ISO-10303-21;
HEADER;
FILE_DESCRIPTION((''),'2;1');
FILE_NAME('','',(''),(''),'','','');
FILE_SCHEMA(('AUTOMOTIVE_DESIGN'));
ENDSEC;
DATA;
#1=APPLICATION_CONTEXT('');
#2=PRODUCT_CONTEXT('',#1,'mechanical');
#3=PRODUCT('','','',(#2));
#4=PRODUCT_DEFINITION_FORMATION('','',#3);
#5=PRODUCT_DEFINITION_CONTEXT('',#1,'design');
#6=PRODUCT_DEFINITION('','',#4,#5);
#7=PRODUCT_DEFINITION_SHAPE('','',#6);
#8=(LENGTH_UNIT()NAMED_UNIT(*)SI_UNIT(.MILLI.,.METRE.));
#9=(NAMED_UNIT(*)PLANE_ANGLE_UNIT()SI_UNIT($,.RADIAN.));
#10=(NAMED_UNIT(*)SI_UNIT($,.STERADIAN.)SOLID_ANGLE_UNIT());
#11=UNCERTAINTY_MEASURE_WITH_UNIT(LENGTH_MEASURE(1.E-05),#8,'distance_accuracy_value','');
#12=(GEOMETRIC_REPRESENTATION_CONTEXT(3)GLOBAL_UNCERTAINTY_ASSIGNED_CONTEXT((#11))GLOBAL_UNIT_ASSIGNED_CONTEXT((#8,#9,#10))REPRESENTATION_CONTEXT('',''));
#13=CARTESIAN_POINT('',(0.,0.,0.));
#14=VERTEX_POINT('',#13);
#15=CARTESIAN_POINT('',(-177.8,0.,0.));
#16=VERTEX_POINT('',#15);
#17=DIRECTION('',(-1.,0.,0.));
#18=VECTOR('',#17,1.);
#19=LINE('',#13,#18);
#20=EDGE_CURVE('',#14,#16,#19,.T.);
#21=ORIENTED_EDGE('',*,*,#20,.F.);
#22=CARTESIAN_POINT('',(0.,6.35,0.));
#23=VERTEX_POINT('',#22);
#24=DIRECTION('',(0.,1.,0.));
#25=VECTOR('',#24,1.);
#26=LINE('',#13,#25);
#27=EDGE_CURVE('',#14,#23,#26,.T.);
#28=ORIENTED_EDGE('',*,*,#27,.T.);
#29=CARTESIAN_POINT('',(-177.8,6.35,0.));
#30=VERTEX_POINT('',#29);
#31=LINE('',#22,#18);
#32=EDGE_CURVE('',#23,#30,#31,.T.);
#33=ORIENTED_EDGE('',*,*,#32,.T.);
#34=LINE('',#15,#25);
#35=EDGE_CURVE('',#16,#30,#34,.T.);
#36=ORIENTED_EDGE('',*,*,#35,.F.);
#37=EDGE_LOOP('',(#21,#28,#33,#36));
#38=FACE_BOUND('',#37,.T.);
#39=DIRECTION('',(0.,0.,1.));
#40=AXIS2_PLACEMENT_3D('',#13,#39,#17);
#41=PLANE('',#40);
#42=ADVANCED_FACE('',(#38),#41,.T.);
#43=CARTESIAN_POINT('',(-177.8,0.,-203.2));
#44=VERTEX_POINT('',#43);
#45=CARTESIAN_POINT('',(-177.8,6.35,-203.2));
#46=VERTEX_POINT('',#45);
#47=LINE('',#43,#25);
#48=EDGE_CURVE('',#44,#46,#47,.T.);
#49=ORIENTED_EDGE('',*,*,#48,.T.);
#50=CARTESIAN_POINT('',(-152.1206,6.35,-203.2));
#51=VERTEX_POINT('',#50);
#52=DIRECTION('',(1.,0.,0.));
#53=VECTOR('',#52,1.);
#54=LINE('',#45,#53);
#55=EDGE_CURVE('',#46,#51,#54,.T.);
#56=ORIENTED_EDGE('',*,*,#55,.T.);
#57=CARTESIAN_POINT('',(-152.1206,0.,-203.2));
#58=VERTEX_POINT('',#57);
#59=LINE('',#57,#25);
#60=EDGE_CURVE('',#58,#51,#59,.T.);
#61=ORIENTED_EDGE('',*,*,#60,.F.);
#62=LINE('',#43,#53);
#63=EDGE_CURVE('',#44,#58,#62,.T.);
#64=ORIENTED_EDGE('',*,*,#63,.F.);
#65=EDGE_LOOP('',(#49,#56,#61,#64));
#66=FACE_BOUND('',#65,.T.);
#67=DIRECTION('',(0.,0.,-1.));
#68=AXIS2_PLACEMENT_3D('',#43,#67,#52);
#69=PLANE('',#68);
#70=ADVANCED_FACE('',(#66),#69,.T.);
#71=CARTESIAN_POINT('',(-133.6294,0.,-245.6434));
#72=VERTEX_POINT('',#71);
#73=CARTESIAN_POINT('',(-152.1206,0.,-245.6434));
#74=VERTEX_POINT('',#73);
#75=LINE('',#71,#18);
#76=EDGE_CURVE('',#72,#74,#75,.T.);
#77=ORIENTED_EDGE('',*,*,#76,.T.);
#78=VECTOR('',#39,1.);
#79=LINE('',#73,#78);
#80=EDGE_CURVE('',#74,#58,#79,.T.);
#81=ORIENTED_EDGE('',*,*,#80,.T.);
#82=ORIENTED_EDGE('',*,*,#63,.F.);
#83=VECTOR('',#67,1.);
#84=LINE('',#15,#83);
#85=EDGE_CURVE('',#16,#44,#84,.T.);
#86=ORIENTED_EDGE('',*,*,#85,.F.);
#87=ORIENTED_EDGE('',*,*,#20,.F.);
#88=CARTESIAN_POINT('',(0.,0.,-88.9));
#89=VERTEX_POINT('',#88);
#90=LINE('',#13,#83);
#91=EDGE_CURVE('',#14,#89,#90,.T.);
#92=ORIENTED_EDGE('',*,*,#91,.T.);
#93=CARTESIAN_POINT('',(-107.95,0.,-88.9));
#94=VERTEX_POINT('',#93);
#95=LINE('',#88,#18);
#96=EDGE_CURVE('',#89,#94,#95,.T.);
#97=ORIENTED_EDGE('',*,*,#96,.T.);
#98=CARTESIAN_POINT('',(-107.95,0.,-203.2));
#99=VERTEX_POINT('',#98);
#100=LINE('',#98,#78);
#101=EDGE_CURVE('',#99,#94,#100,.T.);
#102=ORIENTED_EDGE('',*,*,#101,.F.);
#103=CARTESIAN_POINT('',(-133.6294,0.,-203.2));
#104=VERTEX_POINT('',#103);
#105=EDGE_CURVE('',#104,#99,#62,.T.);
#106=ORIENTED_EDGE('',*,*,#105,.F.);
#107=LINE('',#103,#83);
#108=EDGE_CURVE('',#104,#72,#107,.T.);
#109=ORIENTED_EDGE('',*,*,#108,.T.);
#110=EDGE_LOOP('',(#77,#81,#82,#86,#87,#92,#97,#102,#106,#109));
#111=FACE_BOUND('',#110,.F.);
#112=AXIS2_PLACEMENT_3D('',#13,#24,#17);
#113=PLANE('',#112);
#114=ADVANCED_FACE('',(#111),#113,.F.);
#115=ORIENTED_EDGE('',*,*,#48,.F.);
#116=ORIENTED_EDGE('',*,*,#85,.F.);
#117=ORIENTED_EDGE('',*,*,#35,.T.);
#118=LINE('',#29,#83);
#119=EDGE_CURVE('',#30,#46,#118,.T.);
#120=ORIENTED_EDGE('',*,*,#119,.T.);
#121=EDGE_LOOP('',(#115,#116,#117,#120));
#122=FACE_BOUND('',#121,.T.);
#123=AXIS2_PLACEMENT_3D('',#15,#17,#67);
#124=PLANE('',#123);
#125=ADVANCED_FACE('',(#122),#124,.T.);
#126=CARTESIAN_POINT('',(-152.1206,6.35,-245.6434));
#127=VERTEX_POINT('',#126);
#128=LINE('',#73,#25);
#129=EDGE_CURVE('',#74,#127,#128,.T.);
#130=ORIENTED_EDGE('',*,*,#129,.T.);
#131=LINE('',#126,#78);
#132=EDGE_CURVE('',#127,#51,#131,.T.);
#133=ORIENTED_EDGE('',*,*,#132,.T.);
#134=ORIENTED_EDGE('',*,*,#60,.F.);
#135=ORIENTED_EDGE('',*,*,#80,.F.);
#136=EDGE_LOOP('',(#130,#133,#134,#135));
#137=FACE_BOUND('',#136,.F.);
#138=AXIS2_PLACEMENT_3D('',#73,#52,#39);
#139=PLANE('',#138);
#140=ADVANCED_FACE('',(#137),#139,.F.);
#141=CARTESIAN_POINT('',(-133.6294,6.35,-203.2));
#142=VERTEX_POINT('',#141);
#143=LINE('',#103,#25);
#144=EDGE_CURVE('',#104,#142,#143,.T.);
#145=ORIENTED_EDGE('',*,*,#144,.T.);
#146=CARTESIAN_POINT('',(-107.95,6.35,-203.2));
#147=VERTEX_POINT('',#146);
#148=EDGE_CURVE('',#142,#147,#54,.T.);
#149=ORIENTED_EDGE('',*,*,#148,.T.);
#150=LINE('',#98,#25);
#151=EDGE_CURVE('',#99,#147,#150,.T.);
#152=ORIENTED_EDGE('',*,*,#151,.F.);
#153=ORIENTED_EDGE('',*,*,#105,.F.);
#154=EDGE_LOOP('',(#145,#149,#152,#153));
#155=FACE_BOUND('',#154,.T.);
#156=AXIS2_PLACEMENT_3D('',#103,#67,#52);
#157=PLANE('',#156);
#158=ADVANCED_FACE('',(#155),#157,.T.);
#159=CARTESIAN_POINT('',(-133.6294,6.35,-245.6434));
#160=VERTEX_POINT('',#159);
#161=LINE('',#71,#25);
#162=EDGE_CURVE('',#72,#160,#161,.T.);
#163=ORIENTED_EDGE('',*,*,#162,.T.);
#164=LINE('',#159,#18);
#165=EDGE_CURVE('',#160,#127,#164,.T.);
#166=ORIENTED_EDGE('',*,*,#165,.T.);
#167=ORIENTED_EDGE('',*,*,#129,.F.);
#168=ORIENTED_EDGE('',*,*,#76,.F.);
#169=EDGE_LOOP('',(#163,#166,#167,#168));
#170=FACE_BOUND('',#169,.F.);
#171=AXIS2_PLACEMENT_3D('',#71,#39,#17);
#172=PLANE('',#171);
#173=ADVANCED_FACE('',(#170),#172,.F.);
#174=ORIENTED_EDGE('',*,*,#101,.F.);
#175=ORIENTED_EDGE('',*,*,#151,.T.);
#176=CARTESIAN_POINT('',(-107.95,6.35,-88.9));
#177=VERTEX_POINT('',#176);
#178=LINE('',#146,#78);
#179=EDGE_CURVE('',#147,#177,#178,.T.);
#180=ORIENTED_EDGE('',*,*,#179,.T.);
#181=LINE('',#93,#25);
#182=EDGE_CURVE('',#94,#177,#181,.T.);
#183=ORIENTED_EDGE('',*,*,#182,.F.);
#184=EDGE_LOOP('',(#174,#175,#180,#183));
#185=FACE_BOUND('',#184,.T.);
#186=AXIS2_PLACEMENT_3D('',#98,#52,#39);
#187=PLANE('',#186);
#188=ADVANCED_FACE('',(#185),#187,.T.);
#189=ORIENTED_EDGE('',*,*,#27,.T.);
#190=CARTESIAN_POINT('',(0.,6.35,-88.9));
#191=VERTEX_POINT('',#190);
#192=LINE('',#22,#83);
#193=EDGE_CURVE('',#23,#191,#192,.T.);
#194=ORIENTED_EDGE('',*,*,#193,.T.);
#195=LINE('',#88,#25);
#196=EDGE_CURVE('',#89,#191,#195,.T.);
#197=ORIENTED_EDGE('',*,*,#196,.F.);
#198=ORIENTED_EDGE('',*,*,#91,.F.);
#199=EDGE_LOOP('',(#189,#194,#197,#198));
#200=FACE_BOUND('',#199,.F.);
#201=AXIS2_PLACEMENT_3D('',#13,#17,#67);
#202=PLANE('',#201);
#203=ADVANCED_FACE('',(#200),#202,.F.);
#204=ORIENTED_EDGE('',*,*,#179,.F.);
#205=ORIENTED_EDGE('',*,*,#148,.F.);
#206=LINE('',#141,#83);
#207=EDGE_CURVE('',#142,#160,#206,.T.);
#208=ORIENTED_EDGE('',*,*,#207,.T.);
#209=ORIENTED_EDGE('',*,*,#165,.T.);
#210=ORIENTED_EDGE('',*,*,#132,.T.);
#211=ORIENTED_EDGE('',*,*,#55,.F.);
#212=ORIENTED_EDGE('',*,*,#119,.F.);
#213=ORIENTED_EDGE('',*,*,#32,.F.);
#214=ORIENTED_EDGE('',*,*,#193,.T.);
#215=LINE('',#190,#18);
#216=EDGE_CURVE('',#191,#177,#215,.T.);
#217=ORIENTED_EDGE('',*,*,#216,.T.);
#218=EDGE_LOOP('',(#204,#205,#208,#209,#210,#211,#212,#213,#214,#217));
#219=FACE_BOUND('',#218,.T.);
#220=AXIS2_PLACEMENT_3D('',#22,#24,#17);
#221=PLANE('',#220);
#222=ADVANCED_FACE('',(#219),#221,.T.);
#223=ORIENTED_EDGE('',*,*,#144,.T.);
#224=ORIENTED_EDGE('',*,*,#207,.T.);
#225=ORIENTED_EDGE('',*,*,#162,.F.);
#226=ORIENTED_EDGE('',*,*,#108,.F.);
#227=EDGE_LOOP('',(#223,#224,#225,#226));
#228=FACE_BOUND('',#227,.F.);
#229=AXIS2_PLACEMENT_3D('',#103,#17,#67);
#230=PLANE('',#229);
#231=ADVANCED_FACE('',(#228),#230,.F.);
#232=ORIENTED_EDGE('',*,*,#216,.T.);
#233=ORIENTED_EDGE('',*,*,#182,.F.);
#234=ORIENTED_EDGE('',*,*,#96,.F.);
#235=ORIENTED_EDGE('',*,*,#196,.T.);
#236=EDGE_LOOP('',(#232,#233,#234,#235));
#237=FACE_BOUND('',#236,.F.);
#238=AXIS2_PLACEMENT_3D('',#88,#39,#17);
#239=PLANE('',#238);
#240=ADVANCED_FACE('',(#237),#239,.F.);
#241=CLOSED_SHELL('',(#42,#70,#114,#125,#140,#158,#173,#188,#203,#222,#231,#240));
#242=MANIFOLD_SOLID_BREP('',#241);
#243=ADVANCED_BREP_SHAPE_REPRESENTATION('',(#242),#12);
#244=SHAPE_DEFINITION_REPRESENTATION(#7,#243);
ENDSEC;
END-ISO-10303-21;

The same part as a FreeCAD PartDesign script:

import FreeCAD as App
import Part
import Sketcher
from FreeCAD import Vector
Q = App.Units.Quantity


def add_polygon(sketch, points):
    """Adds a closed chain of lines whose ends are joined by coincident constraints."""
    first, n = sketch.GeometryCount, len(points)
    for a, b in zip(points, points[1:] + points[:1]):
        sketch.addGeometry(Part.LineSegment(App.Vector(*a, 0), App.Vector(*b, 0)), False)
    for i in range(n):
        sketch.addConstraint(Sketcher.Constraint("Coincident", first + i, 2, first + (i + 1) % n, 1))

doc = App.newDocument("Part")
params = doc.addObject("Spreadsheet::Sheet", "Params")
for row, (alias, value) in enumerate([
    ("sketch1_width", "7 in"),
    ("sketch1_height", "8 in"),
    ("sketch1_height2", "3.5 in"),
    ("sketch1_width2", "1.011 in"),
    ("sketch1_width3", "0.728 in"),
    ("pad1_length", "0.25 in"),
], start=1):
    params.set(f"A{row}", alias)
    params.set(f"B{row}", "=" + value)
    params.setAlias(f"B{row}", alias)

body = doc.addObject("PartDesign::Body", "Body")

# Sketch on XZ plane
sketch1 = body.newObject("Sketcher::SketchObject", "Sketch")
sketch1.AttachmentSupport = (doc.getObject("XZ_Plane"), [""])
sketch1.MapMode = "FlatFace"
add_polygon(sketch1, [(-178, 0), (0, 0), (0, -89), (-108, -89), (-108, -203), (-134, -203), (-134, -246), (-152, -246), (-152, -203), (-178, -203)])  # lines 0-9
sketch1.addConstraint(Sketcher.Constraint("Horizontal", 0))
sketch1.addConstraint(Sketcher.Constraint("Vertical", 1))
sketch1.addConstraint(Sketcher.Constraint("Horizontal", 2))
sketch1.addConstraint(Sketcher.Constraint("Vertical", 3))
sketch1.addConstraint(Sketcher.Constraint("Horizontal", 4))
sketch1.addConstraint(Sketcher.Constraint("Vertical", 5))
sketch1.addConstraint(Sketcher.Constraint("Horizontal", 6))
sketch1.addConstraint(Sketcher.Constraint("Vertical", 7))
sketch1.addConstraint(Sketcher.Constraint("Horizontal", 8))
sketch1.addConstraint(Sketcher.Constraint("Vertical", 9))
sketch1.addConstraint(Sketcher.Constraint("Coincident", 0, 2, -1, 1))
sketch1.addConstraint(Sketcher.Constraint("Horizontal", 4, 2, 7, 2))
sketch1.addConstraint(Sketcher.Constraint("Equal", 4, 8))
sketch1.addConstraint(Sketcher.Constraint("DistanceX", 0, 1, 0, 2, Q("7 in")))
sketch1.addConstraint(Sketcher.Constraint("DistanceY", 9, 1, 9, 2, Q("8 in")))
sketch1.addConstraint(Sketcher.Constraint("DistanceY", 1, 2, 1, 1, Q("3.5 in")))
sketch1.addConstraint(Sketcher.Constraint("DistanceX", 4, 2, 4, 1, Q("1.011 in")))
sketch1.addConstraint(Sketcher.Constraint("DistanceX", 6, 2, 6, 1, Q("0.728 in")))
sketch1.addConstraint(Sketcher.Constraint("DistanceY", 5, 2, 5, 1, Q("1.671 in")))
sketch1.setExpression("Constraints[23]", "Params.sketch1_width")
sketch1.setExpression("Constraints[24]", "Params.sketch1_height")
sketch1.setExpression("Constraints[25]", "Params.sketch1_height2")
sketch1.setExpression("Constraints[26]", "Params.sketch1_width2")
sketch1.setExpression("Constraints[27]", "Params.sketch1_width3")
pad1 = body.newObject("PartDesign::Pad", "Pad")
pad1.Profile = sketch1
pad1.setExpression("Length", "Params.pad1_length")
pad1.Reversed = True

doc.recompute()
